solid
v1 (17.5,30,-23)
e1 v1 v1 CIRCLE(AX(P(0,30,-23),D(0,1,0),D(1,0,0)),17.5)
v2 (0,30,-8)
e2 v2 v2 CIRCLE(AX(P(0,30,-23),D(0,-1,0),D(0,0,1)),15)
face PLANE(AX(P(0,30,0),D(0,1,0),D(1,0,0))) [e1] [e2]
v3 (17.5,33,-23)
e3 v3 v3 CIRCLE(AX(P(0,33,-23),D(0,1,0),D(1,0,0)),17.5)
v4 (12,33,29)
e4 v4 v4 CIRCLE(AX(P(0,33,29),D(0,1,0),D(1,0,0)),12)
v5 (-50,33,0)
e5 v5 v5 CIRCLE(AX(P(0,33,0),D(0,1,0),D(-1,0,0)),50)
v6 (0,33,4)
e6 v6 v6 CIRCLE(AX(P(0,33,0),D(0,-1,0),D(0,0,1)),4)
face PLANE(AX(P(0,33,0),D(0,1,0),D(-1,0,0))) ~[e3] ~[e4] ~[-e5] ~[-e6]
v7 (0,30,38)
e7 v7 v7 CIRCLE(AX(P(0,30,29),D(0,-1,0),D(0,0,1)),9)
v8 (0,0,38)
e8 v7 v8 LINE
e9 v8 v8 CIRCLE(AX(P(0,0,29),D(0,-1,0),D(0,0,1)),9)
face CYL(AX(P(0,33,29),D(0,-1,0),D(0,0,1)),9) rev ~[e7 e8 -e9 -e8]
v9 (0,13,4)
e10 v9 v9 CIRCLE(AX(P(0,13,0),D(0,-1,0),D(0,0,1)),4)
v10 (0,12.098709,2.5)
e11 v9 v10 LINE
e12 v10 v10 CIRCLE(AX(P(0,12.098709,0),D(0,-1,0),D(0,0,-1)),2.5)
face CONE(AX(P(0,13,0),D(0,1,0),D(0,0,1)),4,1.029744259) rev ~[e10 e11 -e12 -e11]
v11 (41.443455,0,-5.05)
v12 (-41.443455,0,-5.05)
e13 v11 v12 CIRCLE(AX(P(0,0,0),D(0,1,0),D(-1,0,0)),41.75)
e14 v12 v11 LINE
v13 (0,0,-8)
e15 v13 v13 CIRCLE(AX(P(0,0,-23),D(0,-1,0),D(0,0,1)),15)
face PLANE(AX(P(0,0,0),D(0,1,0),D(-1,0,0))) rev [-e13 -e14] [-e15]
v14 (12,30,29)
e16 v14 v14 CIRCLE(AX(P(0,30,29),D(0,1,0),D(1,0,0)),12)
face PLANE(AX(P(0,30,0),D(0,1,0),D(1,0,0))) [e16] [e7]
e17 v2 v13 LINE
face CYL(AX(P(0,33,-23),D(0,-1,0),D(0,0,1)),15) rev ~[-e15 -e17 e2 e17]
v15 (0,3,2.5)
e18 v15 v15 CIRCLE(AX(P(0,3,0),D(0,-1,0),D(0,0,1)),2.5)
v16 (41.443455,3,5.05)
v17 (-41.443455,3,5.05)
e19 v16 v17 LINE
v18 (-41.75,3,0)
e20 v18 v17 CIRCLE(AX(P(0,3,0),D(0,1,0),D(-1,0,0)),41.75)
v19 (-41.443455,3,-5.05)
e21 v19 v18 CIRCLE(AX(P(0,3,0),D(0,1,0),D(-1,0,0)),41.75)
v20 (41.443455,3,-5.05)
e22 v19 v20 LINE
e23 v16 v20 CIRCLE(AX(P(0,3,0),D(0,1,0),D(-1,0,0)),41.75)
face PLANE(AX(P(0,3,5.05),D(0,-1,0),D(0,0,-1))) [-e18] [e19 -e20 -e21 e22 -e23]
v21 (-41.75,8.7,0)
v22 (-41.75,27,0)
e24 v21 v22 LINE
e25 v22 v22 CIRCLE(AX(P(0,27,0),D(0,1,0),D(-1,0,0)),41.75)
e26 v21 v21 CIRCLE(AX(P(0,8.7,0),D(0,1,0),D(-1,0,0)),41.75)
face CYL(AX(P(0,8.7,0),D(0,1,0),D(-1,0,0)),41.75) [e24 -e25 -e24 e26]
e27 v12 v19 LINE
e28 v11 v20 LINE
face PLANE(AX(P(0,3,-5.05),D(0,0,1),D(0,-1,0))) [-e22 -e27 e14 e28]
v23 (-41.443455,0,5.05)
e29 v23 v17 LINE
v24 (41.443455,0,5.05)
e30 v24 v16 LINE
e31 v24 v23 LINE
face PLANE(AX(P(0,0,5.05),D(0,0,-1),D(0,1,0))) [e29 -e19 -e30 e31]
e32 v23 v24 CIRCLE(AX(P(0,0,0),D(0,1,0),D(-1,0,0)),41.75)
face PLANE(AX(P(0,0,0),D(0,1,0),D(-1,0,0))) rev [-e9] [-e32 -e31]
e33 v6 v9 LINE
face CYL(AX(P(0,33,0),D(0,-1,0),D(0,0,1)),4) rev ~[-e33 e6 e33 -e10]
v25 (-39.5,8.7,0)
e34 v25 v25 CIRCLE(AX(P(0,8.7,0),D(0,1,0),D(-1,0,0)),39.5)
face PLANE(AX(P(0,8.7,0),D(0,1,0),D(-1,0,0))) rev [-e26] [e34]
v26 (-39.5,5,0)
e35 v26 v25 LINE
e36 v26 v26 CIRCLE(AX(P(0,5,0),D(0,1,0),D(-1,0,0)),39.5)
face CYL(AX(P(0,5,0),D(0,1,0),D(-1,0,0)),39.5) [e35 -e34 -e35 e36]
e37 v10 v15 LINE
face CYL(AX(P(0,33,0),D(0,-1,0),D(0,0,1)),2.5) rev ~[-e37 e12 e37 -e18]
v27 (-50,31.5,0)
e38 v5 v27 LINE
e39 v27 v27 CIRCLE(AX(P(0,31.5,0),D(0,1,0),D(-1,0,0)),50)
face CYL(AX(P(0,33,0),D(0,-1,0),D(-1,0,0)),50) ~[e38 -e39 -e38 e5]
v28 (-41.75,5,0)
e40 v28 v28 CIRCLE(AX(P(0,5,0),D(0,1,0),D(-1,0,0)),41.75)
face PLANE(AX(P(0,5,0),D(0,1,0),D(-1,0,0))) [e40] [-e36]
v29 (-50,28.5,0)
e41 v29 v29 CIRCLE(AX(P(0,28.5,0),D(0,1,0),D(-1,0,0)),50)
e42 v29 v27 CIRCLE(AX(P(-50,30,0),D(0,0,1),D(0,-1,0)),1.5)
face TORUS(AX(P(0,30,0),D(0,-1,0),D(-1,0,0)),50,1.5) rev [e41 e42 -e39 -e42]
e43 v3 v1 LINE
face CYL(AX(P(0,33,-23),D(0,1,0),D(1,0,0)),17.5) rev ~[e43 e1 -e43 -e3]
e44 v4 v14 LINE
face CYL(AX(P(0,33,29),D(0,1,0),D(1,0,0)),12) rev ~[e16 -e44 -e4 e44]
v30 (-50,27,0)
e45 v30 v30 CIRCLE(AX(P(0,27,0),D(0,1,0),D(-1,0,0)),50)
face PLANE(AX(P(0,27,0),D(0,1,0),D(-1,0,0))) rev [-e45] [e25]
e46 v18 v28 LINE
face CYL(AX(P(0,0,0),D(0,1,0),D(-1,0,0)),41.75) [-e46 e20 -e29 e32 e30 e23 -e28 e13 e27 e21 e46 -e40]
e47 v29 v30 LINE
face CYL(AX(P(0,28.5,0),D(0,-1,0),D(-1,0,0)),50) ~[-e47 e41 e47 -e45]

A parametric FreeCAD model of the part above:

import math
import FreeCAD as App
import Part
import Sketcher

doc = App.newDocument("Part")
body = doc.addObject("PartDesign::Body", "Body")

sketch1 = doc.addObject("Sketcher::SketchObject", "Sketch")
body.addObject(sketch1)
sketch1.AttachmentSupport = (doc.XY_Plane, [""])
sketch1.MapMode = "FlatFace"
sketch1.addGeometry(Part.LineSegment(App.Vector(-41.8, 0, 0), App.Vector(0, 0, 0)), False)
sketch1.addGeometry(Part.LineSegment(App.Vector(0, 0, 0), App.Vector(0, 33, 0)), False)
sketch1.addGeometry(Part.LineSegment(App.Vector(0, 33, 0), App.Vector(-50, 33, 0)), False)
sketch1.addGeometry(Part.LineSegment(App.Vector(-50, 33, 0), App.Vector(-50, 31.5, 0)), False)
sketch1.addGeometry(Part.ArcOfCircle(Part.Circle(App.Vector(-50, 30, 0), App.Vector(0, 0, 1), 1.5), math.radians(-90), math.radians(90)), False)
sketch1.addGeometry(Part.LineSegment(App.Vector(-50, 28.5, 0), App.Vector(-50, 27, 0)), False)
sketch1.addGeometry(Part.LineSegment(App.Vector(-50, 27, 0), App.Vector(-41.8, 27, 0)), False)
sketch1.addGeometry(Part.LineSegment(App.Vector(-41.8, 27, 0), App.Vector(-41.8, 8.7, 0)), False)
sketch1.addGeometry(Part.LineSegment(App.Vector(-41.8, 8.7, 0), App.Vector(-39.5, 8.7, 0)), False)
sketch1.addGeometry(Part.LineSegment(App.Vector(-39.5, 8.7, 0), App.Vector(-39.5, 5, 0)), False)
sketch1.addGeometry(Part.LineSegment(App.Vector(-39.5, 5, 0), App.Vector(-41.8, 5, 0)), False)
sketch1.addGeometry(Part.LineSegment(App.Vector(-41.8, 5, 0), App.Vector(-41.8, 0, 0)), False)
sketch1.addConstraint(Sketcher.Constraint("Coincident", 0, 2, 1, 1))
sketch1.addConstraint(Sketcher.Constraint("Coincident", 1, 2, 2, 1))
sketch1.addConstraint(Sketcher.Constraint("Coincident", 2, 2, 3, 1))
sketch1.addConstraint(Sketcher.Constraint("Coincident", 3, 2, 4, 2))
sketch1.addConstraint(Sketcher.Constraint("Coincident", 4, 1, 5, 1))
sketch1.addConstraint(Sketcher.Constraint("Coincident", 5, 2, 6, 1))
sketch1.addConstraint(Sketcher.Constraint("Coincident", 6, 2, 7, 1))
sketch1.addConstraint(Sketcher.Constraint("Coincident", 7, 2, 8, 1))
sketch1.addConstraint(Sketcher.Constraint("Coincident", 8, 2, 9, 1))
sketch1.addConstraint(Sketcher.Constraint("Coincident", 9, 2, 10, 1))
sketch1.addConstraint(Sketcher.Constraint("Coincident", 10, 2, 11, 1))
sketch1.addConstraint(Sketcher.Constraint("Coincident", 11, 2, 0, 1))
sketch1.addConstraint(Sketcher.Constraint("Horizontal", 0))
sketch1.addConstraint(Sketcher.Constraint("Vertical", 1))
sketch1.addConstraint(Sketcher.Constraint("Horizontal", 2))
sketch1.addConstraint(Sketcher.Constraint("Vertical", 3))
sketch1.addConstraint(Sketcher.Constraint("Vertical", 5))
sketch1.addConstraint(Sketcher.Constraint("Horizontal", 6))
sketch1.addConstraint(Sketcher.Constraint("Vertical", 7))
sketch1.addConstraint(Sketcher.Constraint("Horizontal", 8))
sketch1.addConstraint(Sketcher.Constraint("Vertical", 9))
sketch1.addConstraint(Sketcher.Constraint("Horizontal", 10))
sketch1.addConstraint(Sketcher.Constraint("Vertical", 11))
sketch1.addConstraint(Sketcher.Constraint("Coincident", 0, 2, -1, 1))
sketch1.addConstraint(Sketcher.Constraint("Vertical", 4, 3, 2, 2))
sketch1.addConstraint(Sketcher.Constraint("Vertical", 3, 2, 4, 1))
sketch1.addConstraint(Sketcher.Constraint("Vertical", 7, 2, 10, 2))
sketch1.addConstraint(Sketcher.Constraint("Equal", 3, 5))
sketch1.addConstraint(Sketcher.Constraint("Radius", 4, 1.5))
sketch1.addConstraint(Sketcher.Constraint("DistanceX", 2, 2, 2, 1, 50.0))
sketch1.addConstraint(Sketcher.Constraint("DistanceY", 1, 1, 1, 2, 33.0))
sketch1.addConstraint(Sketcher.Constraint("DistanceY", 11, 2, 11, 1, 5.0))
sketch1.addConstraint(Sketcher.Constraint("DistanceY", 3, 2, 3, 1, 1.5))
sketch1.addConstraint(Sketcher.Constraint("DistanceY", 9, 2, 9, 1, 3.7))
sketch1.addConstraint(Sketcher.Constraint("DistanceX", 0, 1, 0, 2, 41.75))
sketch1.addConstraint(Sketcher.Constraint("DistanceX", 8, 2, -1, 1, 39.5))
revolution = doc.addObject("PartDesign::Revolution", "Revolution")
body.addObject(revolution)
revolution.Profile = sketch1
revolution.ReferenceAxis = (sketch1, ["V_Axis"])
revolution.Angle = 360

sketch2 = doc.addObject("Sketcher::SketchObject", "Sketch001")
body.addObject(sketch2)
sketch2.AttachmentSupport = (doc.XZ_Plane, [""])
sketch2.MapMode = "FlatFace"
sketch2.AttachmentOffset = App.Placement(App.Vector(0, 0, -33), App.Rotation())
sketch2.addGeometry(Part.Circle(App.Vector(0, -23, 0), App.Vector(0, 0, 1), 15), False)
sketch2.addConstraint(Sketcher.Constraint("PointOnObject", 0, 3, -2))
sketch2.addConstraint(Sketcher.Constraint("Diameter", 0, 30.0))
sketch2.addConstraint(Sketcher.Constraint("DistanceY", 0, 3, -1, 1, 23.0))
doc.recompute()
hole = doc.addObject("PartDesign::Hole", "Hole")
body.addObject(hole)
hole.Profile = sketch2
hole.ThreadType = "None"
hole.Diameter = 30
hole.DepthType = "ThroughAll"
hole.Reversed = True

sketch3 = doc.addObject("Sketcher::SketchObject", "Sketch002")
body.addObject(sketch3)
sketch3.AttachmentSupport = (doc.XZ_Plane, [""])
sketch3.MapMode = "FlatFace"
sketch3.AttachmentOffset = App.Placement(App.Vector(0, 0, -33), App.Rotation())
sketch3.addGeometry(Part.Circle(App.Vector(0, 29, 0), App.Vector(0, 0, 1), 9), False)
sketch3.addConstraint(Sketcher.Constraint("PointOnObject", 0, 3, -2))
sketch3.addConstraint(Sketcher.Constraint("Diameter", 0, 18.0))
sketch3.addConstraint(Sketcher.Constraint("DistanceY", -1, 1, 0, 3, 29.0))
doc.recompute()
hole2 = doc.addObject("PartDesign::Hole", "Hole001")
body.addObject(hole2)
hole2.Profile = sketch3
hole2.ThreadType = "None"
hole2.Diameter = 18
hole2.DepthType = "ThroughAll"
hole2.Reversed = True

sketch4 = doc.addObject("Sketcher::SketchObject", "Sketch003")
body.addObject(sketch4)
sketch4.AttachmentSupport = (doc.YZ_Plane, [""])
sketch4.MapMode = "FlatFace"
sketch4.addGeometry(Part.LineSegment(App.Vector(0, 5, 0), App.Vector(0, -5, 0)), False)
sketch4.addGeometry(Part.LineSegment(App.Vector(0, -5, 0), App.Vector(3, -5, 0)), False)
sketch4.addGeometry(Part.LineSegment(App.Vector(3, -5, 0), App.Vector(3, 5, 0)), False)
sketch4.addGeometry(Part.LineSegment(App.Vector(3, 5, 0), App.Vector(0, 5, 0)), False)
sketch4.addConstraint(Sketcher.Constraint("Coincident", 0, 2, 1, 1))
sketch4.addConstraint(Sketcher.Constraint("Coincident", 1, 2, 2, 1))
sketch4.addConstraint(Sketcher.Constraint("Coincident", 2, 2, 3, 1))
sketch4.addConstraint(Sketcher.Constraint("Coincident", 3, 2, 0, 1))
sketch4.addConstraint(Sketcher.Constraint("Vertical", 0))
sketch4.addConstraint(Sketcher.Constraint("Horizontal", 1))
sketch4.addConstraint(Sketcher.Constraint("Vertical", 2))
sketch4.addConstraint(Sketcher.Constraint("Horizontal", 3))
sketch4.addConstraint(Sketcher.Constraint("Symmetric", 0, 2, 3, 2, -1, 1))
sketch4.addConstraint(Sketcher.Constraint("DistanceX", 1, 1, 1, 2, 3.0))
sketch4.addConstraint(Sketcher.Constraint("DistanceY", 0, 2, 0, 1, 10.1))
pocket1 = doc.addObject("PartDesign::Pocket", "Pocket")
body.addObject(pocket1)
pocket1.Profile = sketch4
pocket1.Type = "ThroughAll"
pocket1.Midplane = True

sketch5 = doc.addObject("Sketcher::SketchObject", "Sketch004")
body.addObject(sketch5)
sketch5.AttachmentSupport = (doc.XZ_Plane, [""])
sketch5.MapMode = "FlatFace"
sketch5.AttachmentOffset = App.Placement(App.Vector(0, 0, -33), App.Rotation())
sketch5.addGeometry(Part.Circle(App.Vector(0, 0, 0), App.Vector(0, 0, 1), 2.5), False)
sketch5.addConstraint(Sketcher.Constraint("Coincident", 0, 3, -1, 1))
sketch5.addConstraint(Sketcher.Constraint("Diameter", 0, 5.0))
doc.recompute()
hole3 = doc.addObject("PartDesign::Hole", "Hole002")
body.addObject(hole3)
hole3.Profile = sketch5
hole3.ThreadType = "None"
hole3.Diameter = 5
hole3.DepthType = "ThroughAll"
hole3.Reversed = True

sketch6 = doc.addObject("Sketcher::SketchObject", "Sketch005")
body.addObject(sketch6)
sketch6.AttachmentSupport = (doc.XZ_Plane, [""])
sketch6.MapMode = "FlatFace"
sketch6.AttachmentOffset = App.Placement(App.Vector(0, 0, -33), App.Rotation())
sketch6.addGeometry(Part.Circle(App.Vector(0, 0, 0), App.Vector(0, 0, 1), 4), False)
sketch6.addConstraint(Sketcher.Constraint("Coincident", 0, 3, -1, 1))
sketch6.addConstraint(Sketcher.Constraint("Diameter", 0, 8.0))
doc.recompute()
hole4 = doc.addObject("PartDesign::Hole", "Hole003")
body.addObject(hole4)
hole4.Profile = sketch6
hole4.ThreadType = "None"
hole4.Diameter = 8
hole4.DepthType = "Dimension"
hole4.Depth = 20
hole4.DrillPoint = "Angled"
hole4.DrillPointAngle = 118
hole4.Reversed = True

sketch7 = doc.addObject("Sketcher::SketchObject", "Sketch006")
body.addObject(sketch7)
sketch7.AttachmentSupport = (doc.XZ_Plane, [""])
sketch7.MapMode = "FlatFace"
sketch7.AttachmentOffset = App.Placement(App.Vector(0, 0, -33), App.Rotation())
sketch7.addGeometry(Part.Circle(App.Vector(0, 29, 0), App.Vector(0, 0, 1), 12), False)
sketch7.addGeometry(Part.Circle(App.Vector(0, -23, 0), App.Vector(0, 0, 1), 18), False)
sketch7.addConstraint(Sketcher.Constraint("PointOnObject", 0, 3, -2))
sketch7.addConstraint(Sketcher.Constraint("PointOnObject", 1, 3, -2))
sketch7.addConstraint(Sketcher.Constraint("Diameter", 0, 24.0))
sketch7.addConstraint(Sketcher.Constraint("Diameter", 1, 35.0))
sketch7.addConstraint(Sketcher.Constraint("DistanceY", -1, 1, 0, 3, 29.0))
sketch7.addConstraint(Sketcher.Constraint("DistanceY", 1, 3, -1, 1, 23.0))
pocket2 = doc.addObject("PartDesign::Pocket", "Pocket001")
body.addObject(pocket2)
pocket2.Profile = sketch7
pocket2.Length = 3
pocket2.Reversed = True

doc.recompute()
